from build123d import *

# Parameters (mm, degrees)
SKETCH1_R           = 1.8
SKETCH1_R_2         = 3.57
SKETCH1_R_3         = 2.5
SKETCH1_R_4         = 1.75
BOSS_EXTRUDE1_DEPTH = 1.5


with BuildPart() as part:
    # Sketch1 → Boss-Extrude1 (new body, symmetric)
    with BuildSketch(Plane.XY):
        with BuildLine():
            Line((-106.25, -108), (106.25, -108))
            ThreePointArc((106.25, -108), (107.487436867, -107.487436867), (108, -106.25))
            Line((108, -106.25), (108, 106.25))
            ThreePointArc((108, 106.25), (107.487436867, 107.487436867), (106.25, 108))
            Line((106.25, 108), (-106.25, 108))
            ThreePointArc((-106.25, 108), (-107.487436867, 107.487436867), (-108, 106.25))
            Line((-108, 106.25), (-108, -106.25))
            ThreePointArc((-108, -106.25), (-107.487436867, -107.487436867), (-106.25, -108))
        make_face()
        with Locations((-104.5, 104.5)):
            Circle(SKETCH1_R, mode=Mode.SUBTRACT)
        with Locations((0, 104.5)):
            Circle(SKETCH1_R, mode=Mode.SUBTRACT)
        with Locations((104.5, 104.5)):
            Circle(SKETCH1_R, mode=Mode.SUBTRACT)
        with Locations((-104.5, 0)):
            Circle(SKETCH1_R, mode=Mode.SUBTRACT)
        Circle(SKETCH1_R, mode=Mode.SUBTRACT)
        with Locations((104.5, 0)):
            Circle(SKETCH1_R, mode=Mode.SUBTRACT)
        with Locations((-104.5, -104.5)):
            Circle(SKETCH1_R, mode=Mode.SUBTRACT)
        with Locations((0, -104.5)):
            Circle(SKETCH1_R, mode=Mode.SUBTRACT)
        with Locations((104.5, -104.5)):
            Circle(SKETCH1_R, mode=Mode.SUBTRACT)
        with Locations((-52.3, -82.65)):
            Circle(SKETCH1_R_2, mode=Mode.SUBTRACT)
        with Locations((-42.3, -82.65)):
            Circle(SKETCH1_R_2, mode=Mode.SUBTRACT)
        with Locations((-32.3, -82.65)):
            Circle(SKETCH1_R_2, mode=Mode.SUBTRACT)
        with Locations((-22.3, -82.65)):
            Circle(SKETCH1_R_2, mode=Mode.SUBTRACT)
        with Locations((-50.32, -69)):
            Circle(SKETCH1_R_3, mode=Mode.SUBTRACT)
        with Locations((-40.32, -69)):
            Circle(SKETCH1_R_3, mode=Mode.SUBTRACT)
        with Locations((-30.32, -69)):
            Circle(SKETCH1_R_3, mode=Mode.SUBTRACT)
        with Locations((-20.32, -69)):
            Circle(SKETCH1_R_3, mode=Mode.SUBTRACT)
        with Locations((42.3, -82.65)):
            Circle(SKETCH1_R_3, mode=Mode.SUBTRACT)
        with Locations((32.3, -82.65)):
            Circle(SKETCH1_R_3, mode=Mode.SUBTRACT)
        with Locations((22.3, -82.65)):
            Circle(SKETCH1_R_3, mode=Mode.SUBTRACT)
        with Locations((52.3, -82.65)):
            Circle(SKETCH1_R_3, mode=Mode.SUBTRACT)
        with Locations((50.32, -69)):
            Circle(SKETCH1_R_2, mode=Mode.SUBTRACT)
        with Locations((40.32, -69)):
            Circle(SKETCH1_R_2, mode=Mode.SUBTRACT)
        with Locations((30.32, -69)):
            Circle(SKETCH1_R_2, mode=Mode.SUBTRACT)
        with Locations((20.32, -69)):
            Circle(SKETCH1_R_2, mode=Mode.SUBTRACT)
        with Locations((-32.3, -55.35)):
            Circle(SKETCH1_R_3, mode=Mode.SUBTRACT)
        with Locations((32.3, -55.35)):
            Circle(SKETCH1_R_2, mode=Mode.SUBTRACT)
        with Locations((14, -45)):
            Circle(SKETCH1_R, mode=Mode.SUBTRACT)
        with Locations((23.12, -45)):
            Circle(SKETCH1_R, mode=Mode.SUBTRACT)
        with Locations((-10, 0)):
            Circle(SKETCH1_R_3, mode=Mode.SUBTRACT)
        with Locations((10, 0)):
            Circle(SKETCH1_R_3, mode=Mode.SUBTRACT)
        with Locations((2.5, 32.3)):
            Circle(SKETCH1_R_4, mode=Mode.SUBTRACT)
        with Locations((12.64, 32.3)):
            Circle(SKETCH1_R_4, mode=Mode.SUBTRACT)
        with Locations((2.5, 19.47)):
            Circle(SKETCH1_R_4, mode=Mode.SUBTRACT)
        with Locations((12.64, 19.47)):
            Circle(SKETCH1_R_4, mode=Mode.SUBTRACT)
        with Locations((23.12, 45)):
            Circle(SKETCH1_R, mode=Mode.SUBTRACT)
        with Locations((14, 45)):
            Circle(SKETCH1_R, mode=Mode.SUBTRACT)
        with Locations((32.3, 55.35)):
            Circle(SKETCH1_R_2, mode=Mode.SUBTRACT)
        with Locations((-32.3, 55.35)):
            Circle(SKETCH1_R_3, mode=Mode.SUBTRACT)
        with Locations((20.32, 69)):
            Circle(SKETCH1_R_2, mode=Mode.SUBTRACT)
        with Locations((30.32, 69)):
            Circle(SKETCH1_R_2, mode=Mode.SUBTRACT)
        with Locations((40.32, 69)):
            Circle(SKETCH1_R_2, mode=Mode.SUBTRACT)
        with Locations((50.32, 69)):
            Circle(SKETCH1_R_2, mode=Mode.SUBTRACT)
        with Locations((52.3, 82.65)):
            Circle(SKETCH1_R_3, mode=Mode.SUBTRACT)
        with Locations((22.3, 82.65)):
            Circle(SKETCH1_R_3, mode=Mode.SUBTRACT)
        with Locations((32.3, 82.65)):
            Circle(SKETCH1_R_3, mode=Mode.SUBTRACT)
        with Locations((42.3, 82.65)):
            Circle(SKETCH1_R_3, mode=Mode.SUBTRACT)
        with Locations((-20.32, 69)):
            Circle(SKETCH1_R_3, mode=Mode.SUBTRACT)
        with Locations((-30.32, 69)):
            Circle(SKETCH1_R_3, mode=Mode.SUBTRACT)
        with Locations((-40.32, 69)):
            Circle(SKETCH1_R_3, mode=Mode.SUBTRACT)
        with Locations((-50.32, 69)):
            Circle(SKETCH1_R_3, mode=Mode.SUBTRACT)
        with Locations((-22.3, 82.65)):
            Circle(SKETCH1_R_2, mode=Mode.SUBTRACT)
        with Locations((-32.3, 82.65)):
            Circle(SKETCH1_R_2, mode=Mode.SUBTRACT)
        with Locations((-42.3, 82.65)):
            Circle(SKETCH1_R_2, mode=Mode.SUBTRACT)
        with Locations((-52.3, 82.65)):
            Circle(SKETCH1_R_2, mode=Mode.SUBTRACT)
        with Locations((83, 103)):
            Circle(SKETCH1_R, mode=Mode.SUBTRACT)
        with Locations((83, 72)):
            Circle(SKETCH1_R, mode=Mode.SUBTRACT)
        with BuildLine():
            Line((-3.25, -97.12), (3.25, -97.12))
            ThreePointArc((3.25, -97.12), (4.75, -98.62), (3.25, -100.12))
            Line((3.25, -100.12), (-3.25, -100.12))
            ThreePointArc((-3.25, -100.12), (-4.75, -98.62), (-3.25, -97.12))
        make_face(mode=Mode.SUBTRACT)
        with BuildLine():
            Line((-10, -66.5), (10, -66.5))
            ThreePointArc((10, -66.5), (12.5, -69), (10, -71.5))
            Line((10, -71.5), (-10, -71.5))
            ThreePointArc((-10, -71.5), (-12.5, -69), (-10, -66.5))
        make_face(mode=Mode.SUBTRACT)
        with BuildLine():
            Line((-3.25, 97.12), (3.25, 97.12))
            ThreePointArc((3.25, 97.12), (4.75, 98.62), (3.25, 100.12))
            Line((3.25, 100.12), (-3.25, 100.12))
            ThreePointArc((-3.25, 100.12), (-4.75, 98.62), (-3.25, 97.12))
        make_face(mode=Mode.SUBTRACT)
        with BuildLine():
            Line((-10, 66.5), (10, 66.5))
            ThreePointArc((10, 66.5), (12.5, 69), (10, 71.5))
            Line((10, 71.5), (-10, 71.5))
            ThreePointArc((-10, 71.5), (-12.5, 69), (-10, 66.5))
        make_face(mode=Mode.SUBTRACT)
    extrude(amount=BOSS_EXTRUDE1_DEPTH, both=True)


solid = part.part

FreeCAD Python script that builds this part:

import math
import FreeCAD as App
import Part
import Sketcher

V = App.Vector

doc = App.newDocument("Part")
params = doc.addObject("Spreadsheet::Sheet", "Params")
for row, (alias, value) in enumerate([
    ("sketch1_diameter", "5 mm"),
    ("sketch1_diameter2", "3.6 mm"),
    ("sketch1_diameter3", "3.5 mm"),
    ("sketch1_radius", "1.5 mm"),
    ("sketch1_diameter4", "7.14 mm"),
    ("pad1_length", "3 mm"),
], start=1):
    params.set(f"A{row}", alias)
    params.set(f"B{row}", "=" + value)
    params.setAlias(f"B{row}", alias)

body = doc.addObject("PartDesign::Body", "Body")

# Sketch on XY plane
sketch1 = body.newObject("Sketcher::SketchObject", "Sketch")
sketch1.AttachmentSupport = (doc.getObject("XY_Plane"), [""])
sketch1.MapMode = "FlatFace"
sketch1.addGeometry([
    Part.LineSegment(V(-106.25, -108, 0), V(106.25, -108, 0)),  # 0
    Part.ArcOfCircle(Part.Circle(V(106.25, -106.25, 0), V(0, 0, 1), 1.75), math.radians(-90), math.radians(0)),  # 1
    Part.LineSegment(V(108, -106.25, 0), V(108, 106.25, 0)),  # 2
    Part.ArcOfCircle(Part.Circle(V(106.25, 106.25, 0), V(0, 0, 1), 1.75), math.radians(0), math.radians(90)),  # 3
    Part.LineSegment(V(106.25, 108, 0), V(-106.25, 108, 0)),  # 4
    Part.ArcOfCircle(Part.Circle(V(-106.25, 106.25, 0), V(0, 0, 1), 1.75), math.radians(90), math.radians(180)),  # 5
    Part.LineSegment(V(-108, 106.25, 0), V(-108, -106.25, 0)),  # 6
    Part.ArcOfCircle(Part.Circle(V(-106.25, -106.25, 0), V(0, 0, 1), 1.75), math.radians(180), math.radians(270)),  # 7
    Part.Circle(V(-104.5, -104.5, 0), V(0, 0, 1), 1.8),  # 8
    Part.Circle(V(-52.3, -82.65, 0), V(0, 0, 1), 3.57),  # 9
    Part.Circle(V(-42.3, -82.65, 0), V(0, 0, 1), 3.57),  # 10
    Part.Circle(V(-32.3, -82.65, 0), V(0, 0, 1), 3.57),  # 11
    Part.Circle(V(-22.3, -82.65, 0), V(0, 0, 1), 3.57),  # 12
    Part.Circle(V(-50.32, -69, 0), V(0, 0, 1), 2.5),  # 13
    Part.Circle(V(-40.32, -69, 0), V(0, 0, 1), 2.5),  # 14
    Part.Circle(V(-30.32, -69, 0), V(0, 0, 1), 2.5),  # 15
    Part.Circle(V(-32.3, -55.35, 0), V(0, 0, 1), 2.5),  # 16
    Part.Circle(V(-20.32, -69, 0), V(0, 0, 1), 2.5),  # 17
    Part.Circle(V(0, -104.5, 0), V(0, 0, 1), 1.8),  # 18
    Part.ArcOfCircle(Part.Circle(V(-3.25, -98.62, 0), V(0, 0, 1), 1.5), math.radians(90), math.radians(270)),  # 19
    Part.LineSegment(V(-3.25, -97.12, 0), V(3.25, -97.12, 0)),  # 20
    Part.ArcOfCircle(Part.Circle(V(3.25, -98.62, 0), V(0, 0, 1), 1.5), math.radians(-90), math.radians(90)),  # 21
    Part.LineSegment(V(3.25, -100.12, 0), V(-3.25, -100.12, 0)),  # 22
    Part.Circle(V(22.3, -82.65, 0), V(0, 0, 1), 2.5),  # 23
    Part.Circle(V(32.3, -82.65, 0), V(0, 0, 1), 2.5),  # 24
    Part.Circle(V(42.3, -82.65, 0), V(0, 0, 1), 2.5),  # 25
    Part.Circle(V(52.3, -82.65, 0), V(0, 0, 1), 2.5),  # 26
    Part.ArcOfCircle(Part.Circle(V(-10, -69, 0), V(0, 0, 1), 2.5), math.radians(90), math.radians(270)),  # 27
    Part.LineSegment(V(-10, -66.5, 0), V(10, -66.5, 0)),  # 28
    Part.ArcOfCircle(Part.Circle(V(10, -69, 0), V(0, 0, 1), 2.5), math.radians(-90), math.radians(90)),  # 29
    Part.LineSegment(V(10, -71.5, 0), V(-10, -71.5, 0)),  # 30
    Part.Circle(V(20.32, -69, 0), V(0, 0, 1), 3.57),  # 31
    Part.Circle(V(30.32, -69, 0), V(0, 0, 1), 3.57),  # 32
    Part.Circle(V(40.32, -69, 0), V(0, 0, 1), 3.57),  # 33
    Part.Circle(V(50.32, -69, 0), V(0, 0, 1), 3.57),  # 34
    Part.Circle(V(32.3, -55.35, 0), V(0, 0, 1), 3.57),  # 35
    Part.Circle(V(104.5, -104.5, 0), V(0, 0, 1), 1.8),  # 36
    Part.Circle(V(14, -45, 0), V(0, 0, 1), 1.8),  # 37
    Part.Circle(V(23.12, -45, 0), V(0, 0, 1), 1.8),  # 38
    Part.Circle(V(-104.5, 0, 0), V(0, 0, 1), 1.8),  # 39
    Part.Circle(V(-10, 0, 0), V(0, 0, 1), 2.5),  # 40
    Part.Circle(V(-104.5, 104.5, 0), V(0, 0, 1), 1.8),  # 41
    Part.Circle(V(-32.3, 55.35, 0), V(0, 0, 1), 2.5),  # 42
    Part.Circle(V(-50.32, 69, 0), V(0, 0, 1), 2.5),  # 43
    Part.Circle(V(-40.32, 69, 0), V(0, 0, 1), 2.5),  # 44
    Part.Circle(V(-30.32, 69, 0), V(0, 0, 1), 2.5),  # 45
    Part.Circle(V(-20.32, 69, 0), V(0, 0, 1), 2.5),  # 46
    Part.Circle(V(-52.3, 82.65, 0), V(0, 0, 1), 3.57),  # 47
    Part.Circle(V(-42.3, 82.65, 0), V(0, 0, 1), 3.57),  # 48
    Part.Circle(V(-32.3, 82.65, 0), V(0, 0, 1), 3.57),  # 49
    Part.Circle(V(-22.3, 82.65, 0), V(0, 0, 1), 3.57),  # 50
    Part.Circle(V(0, 0, 0), V(0, 0, 1), 1.8),  # 51
    Part.Circle(V(10, 0, 0), V(0, 0, 1), 2.5),  # 52
    Part.Circle(V(2.5, 19.47, 0), V(0, 0, 1), 1.75),  # 53
    Part.Circle(V(12.64, 19.47, 0), V(0, 0, 1), 1.75),  # 54
    Part.Circle(V(2.5, 32.3, 0), V(0, 0, 1), 1.75),  # 55
    Part.Circle(V(12.64, 32.3, 0), V(0, 0, 1), 1.75),  # 56
    Part.Circle(V(14, 45, 0), V(0, 0, 1), 1.8),  # 57
    Part.Circle(V(23.12, 45, 0), V(0, 0, 1), 1.8),  # 58
    Part.Circle(V(104.5, 0, 0), V(0, 0, 1), 1.8),  # 59
    Part.LineSegment(V(10, 66.5, 0), V(-10, 66.5, 0)),  # 60
    Part.ArcOfCircle(Part.Circle(V(-10, 69, 0), V(0, 0, 1), 2.5), math.radians(90), math.radians(270)),  # 61
    Part.LineSegment(V(-10, 71.5, 0), V(10, 71.5, 0)),  # 62
    Part.ArcOfCircle(Part.Circle(V(10, 69, 0), V(0, 0, 1), 2.5), math.radians(-90), math.radians(90)),  # 63
    Part.Circle(V(20.32, 69, 0), V(0, 0, 1), 3.57),  # 64
    Part.Circle(V(32.3, 55.35, 0), V(0, 0, 1), 3.57),  # 65
    Part.Circle(V(30.32, 69, 0), V(0, 0, 1), 3.57),  # 66
    Part.Circle(V(40.32, 69, 0), V(0, 0, 1), 3.57),  # 67
    Part.Circle(V(50.32, 69, 0), V(0, 0, 1), 3.57),  # 68
    Part.Circle(V(22.3, 82.65, 0), V(0, 0, 1), 2.5),  # 69
    Part.LineSegment(V(3.25, 97.12, 0), V(-3.25, 97.12, 0)),  # 70
    Part.ArcOfCircle(Part.Circle(V(-3.25, 98.62, 0), V(0, 0, 1), 1.5), math.radians(90), math.radians(270)),  # 71
    Part.LineSegment(V(-3.25, 100.12, 0), V(3.25, 100.12, 0)),  # 72
    Part.ArcOfCircle(Part.Circle(V(3.25, 98.62, 0), V(0, 0, 1), 1.5), math.radians(-90), math.radians(90)),  # 73
    Part.Circle(V(0, 104.5, 0), V(0, 0, 1), 1.8),  # 74
    Part.Circle(V(32.3, 82.65, 0), V(0, 0, 1), 2.5),  # 75
    Part.Circle(V(42.3, 82.65, 0), V(0, 0, 1), 2.5),  # 76
    Part.Circle(V(52.3, 82.65, 0), V(0, 0, 1), 2.5),  # 77
    Part.Circle(V(83, 72, 0), V(0, 0, 1), 1.8),  # 78
    Part.Circle(V(83, 103, 0), V(0, 0, 1), 1.8),  # 79
    Part.Circle(V(104.5, 104.5, 0), V(0, 0, 1), 1.8),  # 80
], False)
sketch1.addConstraint([
    Sketcher.Constraint("Tangent", 0, 2, 1, 1),
    Sketcher.Constraint("Tangent", 1, 2, 2, 1),
    Sketcher.Constraint("Tangent", 2, 2, 3, 1),
    Sketcher.Constraint("Tangent", 3, 2, 4, 1),
    Sketcher.Constraint("Tangent", 4, 2, 5, 1),
    Sketcher.Constraint("Tangent", 5, 2, 6, 1),
    Sketcher.Constraint("Tangent", 6, 2, 7, 1),
    Sketcher.Constraint("Tangent", 7, 2, 0, 1),
    Sketcher.Constraint("Tangent", 19, 1, 20, 1),
    Sketcher.Constraint("Tangent", 20, 2, 21, 2),
    Sketcher.Constraint("Tangent", 21, 1, 22, 1),
    Sketcher.Constraint("Tangent", 22, 2, 19, 2),
    Sketcher.Constraint("Tangent", 27, 1, 28, 1),
    Sketcher.Constraint("Tangent", 28, 2, 29, 2),
    Sketcher.Constraint("Tangent", 29, 1, 30, 1),
    Sketcher.Constraint("Tangent", 30, 2, 27, 2),
    Sketcher.Constraint("Tangent", 60, 2, 61, 2),
    Sketcher.Constraint("Tangent", 61, 1, 62, 1),
    Sketcher.Constraint("Tangent", 62, 2, 63, 2),
    Sketcher.Constraint("Tangent", 63, 1, 60, 1),
    Sketcher.Constraint("Tangent", 70, 2, 71, 2),
    Sketcher.Constraint("Tangent", 71, 1, 72, 1),
    Sketcher.Constraint("Tangent", 72, 2, 73, 2),
    Sketcher.Constraint("Tangent", 73, 1, 70, 1),
    Sketcher.Constraint("Horizontal", 0),
    Sketcher.Constraint("Vertical", 2),
    Sketcher.Constraint("Horizontal", 4),
    Sketcher.Constraint("Vertical", 6),
    Sketcher.Constraint("Horizontal", 20),
    Sketcher.Constraint("Horizontal", 22),
    Sketcher.Constraint("Horizontal", 28),
    Sketcher.Constraint("Horizontal", 30),
    Sketcher.Constraint("Horizontal", 60),
    Sketcher.Constraint("Horizontal", 62),
    Sketcher.Constraint("Horizontal", 70),
    Sketcher.Constraint("Horizontal", 72),
    Sketcher.Constraint("Coincident", 51, 3, -1, 1),
    Sketcher.Constraint("Equal", 1, 3),
    Sketcher.Constraint("Equal", 3, 5),
    Sketcher.Constraint("Equal", 5, 7),
    Sketcher.Constraint("Equal", 9, 10),
    Sketcher.Constraint("Equal", 10, 11),
    Sketcher.Constraint("Equal", 11, 12),
    Sketcher.Constraint("Equal", 13, 14),
    Sketcher.Constraint("Equal", 14, 15),
    Sketcher.Constraint("Equal", 15, 16),
    Sketcher.Constraint("Equal", 16, 17),
    Sketcher.Constraint("Equal", 8, 18),
    Sketcher.Constraint("Equal", 17, 23),
    Sketcher.Constraint("Equal", 23, 24),
    Sketcher.Constraint("Equal", 24, 25),
    Sketcher.Constraint("Equal", 25, 26),
    Sketcher.Constraint("Equal", 26, 27),
    Sketcher.Constraint("Equal", 12, 31),
    Sketcher.Constraint("Equal", 31, 32),
    Sketcher.Constraint("Equal", 32, 33),
    Sketcher.Constraint("Equal", 33, 34),
    Sketcher.Constraint("Equal", 34, 35),
    Sketcher.Constraint("Equal", 18, 36),
    Sketcher.Constraint("Equal", 36, 37),
    Sketcher.Constraint("Equal", 37, 38),
    Sketcher.Constraint("Equal", 38, 39),
    Sketcher.Constraint("Equal", 29, 40),
    Sketcher.Constraint("Equal", 39, 41),
    Sketcher.Constraint("Equal", 40, 42),
    Sketcher.Constraint("Equal", 42, 43),
    Sketcher.Constraint("Equal", 43, 44),
    Sketcher.Constraint("Equal", 44, 45),
    Sketcher.Constraint("Equal", 45, 46),
    Sketcher.Constraint("Equal", 35, 47),
    Sketcher.Constraint("Equal", 47, 48),
    Sketcher.Constraint("Equal", 48, 49),
    Sketcher.Constraint("Equal", 49, 50),
    Sketcher.Constraint("Equal", 41, 51),
    Sketcher.Constraint("Equal", 46, 52),
    Sketcher.Constraint("Equal", 7, 53),
    Sketcher.Constraint("Equal", 53, 54),
    Sketcher.Constraint("Equal", 54, 55),
    Sketcher.Constraint("Equal", 55, 56),
    Sketcher.Constraint("Equal", 51, 57),
    Sketcher.Constraint("Equal", 57, 58),
    Sketcher.Constraint("Equal", 58, 59),
    Sketcher.Constraint("Equal", 52, 61),
    Sketcher.Constraint("Equal", 50, 64),
    Sketcher.Constraint("Equal", 64, 65),
    Sketcher.Constraint("Equal", 65, 66),
    Sketcher.Constraint("Equal", 66, 67),
    Sketcher.Constraint("Equal", 67, 68),
    Sketcher.Constraint("Equal", 63, 69),
    Sketcher.Constraint("Equal", 21, 71),
    Sketcher.Constraint("Equal", 59, 74),
    Sketcher.Constraint("Equal", 69, 75),
    Sketcher.Constraint("Equal", 75, 76),
    Sketcher.Constraint("Equal", 76, 77),
    Sketcher.Constraint("Equal", 74, 78),
    Sketcher.Constraint("Equal", 78, 79),
    Sketcher.Constraint("Equal", 79, 80),
    Sketcher.Constraint("Symmetric", 1, 3, 5, 3, -1, 1),
    Sketcher.Constraint("Symmetric", 36, 3, 41, 3, -1, 1),
    Sketcher.Constraint("Symmetric", 35, 3, 42, 3, -1, 1),
    Sketcher.Constraint("Symmetric", 34, 3, 43, 3, -1, 1),
    Sketcher.Constraint("Symmetric", 33, 3, 44, 3, -1, 1),
    Sketcher.Constraint("Symmetric", 32, 3, 45, 3, -1, 1),
    Sketcher.Constraint("Symmetric", 31, 3, 46, 3, -1, 1),
    Sketcher.Constraint("Symmetric", 26, 3, 47, 3, -1, 1),
    Sketcher.Constraint("Symmetric", 25, 3, 48, 3, -1, 1),
    Sketcher.Constraint("Symmetric", 24, 3, 49, 3, -1, 1),
    Sketcher.Constraint("Symmetric", 23, 3, 50, 3, -1, 1),
    Sketcher.Constraint("Symmetric", 40, 3, 52, 3, -1, 1),
    Sketcher.Constraint("Symmetric", 39, 3, 59, 3, -1, 1),
    Sketcher.Constraint("Symmetric", 29, 3, 61, 3, -1, 1),
    Sketcher.Constraint("Symmetric", 17, 3, 64, 3, -1, 1),
    Sketcher.Constraint("Symmetric", 16, 3, 65, 3, -1, 1),
    Sketcher.Constraint("Symmetric", 15, 3, 66, 3, -1, 1),
    Sketcher.Constraint("Symmetric", 14, 3, 67, 3, -1, 1),
    Sketcher.Constraint("Symmetric", 13, 3, 68, 3, -1, 1),
    Sketcher.Constraint("Symmetric", 12, 3, 69, 3, -1, 1),
    Sketcher.Constraint("Symmetric", 21, 3, 71, 3, -1, 1),
    Sketcher.Constraint("Symmetric", 18, 3, 74, 3, -1, 1),
    Sketcher.Constraint("Symmetric", 11, 3, 75, 3, -1, 1),
    Sketcher.Constraint("Symmetric", 10, 3, 76, 3, -1, 1),
    Sketcher.Constraint("Symmetric", 9, 3, 77, 3, -1, 1),
    Sketcher.Constraint("Symmetric", 8, 3, 80, 3, -1, 1),
    Sketcher.Constraint("Symmetric", 12, 3, 23, 3, -2),
    Sketcher.Constraint("Symmetric", 11, 3, 24, 3, -2),
    Sketcher.Constraint("Symmetric", 10, 3, 25, 3, -2),
    Sketcher.Constraint("Symmetric", 9, 3, 26, 3, -2),
    Sketcher.Constraint("Symmetric", 17, 3, 31, 3, -2),
    Sketcher.Constraint("Symmetric", 15, 3, 32, 3, -2),
    Sketcher.Constraint("Symmetric", 14, 3, 33, 3, -2),
    Sketcher.Constraint("Symmetric", 13, 3, 34, 3, -2),
    Sketcher.Constraint("Symmetric", 16, 3, 35, 3, -2),
    Sketcher.Constraint("Symmetric", 8, 3, 36, 3, -2),
    Sketcher.Constraint("Symmetric", 37, 3, 57, 3, -1),
    Sketcher.Constraint("Symmetric", 38, 3, 58, 3, -1),
    Sketcher.Constraint("PointOnObject", 18, 3, -2),
    Sketcher.Constraint("PointOnObject", 39, 3, -1),
    Sketcher.Constraint("PointOnObject", 40, 3, -1),
    Sketcher.Constraint("Horizontal", 9, 3, 10, 3),
    Sketcher.Constraint("Horizontal", 10, 3, 11, 3),
    Sketcher.Constraint("Horizontal", 11, 3, 12, 3),
    Sketcher.Constraint("Horizontal", 13, 3, 14, 3),
    Sketcher.Constraint("Horizontal", 14, 3, 15, 3),
    Sketcher.Constraint("Horizontal", 15, 3, 17, 3),
    Sketcher.Constraint("Horizontal", 8, 3, 18, 3),
    Sketcher.Constraint("Horizontal", 17, 3, 27, 3),
    Sketcher.Constraint("Horizontal", 37, 3, 38, 3),
    Sketcher.Constraint("Horizontal", 53, 3, 54, 3),
    Sketcher.Constraint("Horizontal", 55, 3, 56, 3),
    Sketcher.Constraint("Vertical", 11, 3, 16, 3),
    Sketcher.Constraint("Vertical", 8, 3, 39, 3),
    Sketcher.Constraint("Vertical", 27, 3, 40, 3),
    Sketcher.Constraint("Vertical", 29, 3, 52, 3),
    Sketcher.Constraint("Vertical", 53, 3, 55, 3),
    Sketcher.Constraint("Vertical", 54, 3, 56, 3),
    Sketcher.Constraint("Vertical", 52, 3, 63, 3),
    Sketcher.Constraint("Vertical", 19, 3, 71, 3),
    Sketcher.Constraint("Vertical", 21, 3, 73, 3),
    Sketcher.Constraint("Vertical", 78, 3, 79, 3),
    Sketcher.Constraint("Equal", 4, 2),
    Sketcher.Constraint("Diameter", 13, 5.0),
    Sketcher.Constraint("Diameter", 8, 3.6),
    Sketcher.Constraint("Diameter", 53, 3.5),
    Sketcher.Constraint("Radius", 19, 1.5),
    Sketcher.Constraint("Diameter", 9, 7.14),
    Sketcher.Constraint("DistanceX", 28, 1, 28, 2, 20.0),
    Sketcher.Constraint("DistanceX", 0, 1, 0, 2, 212.5),
    Sketcher.Constraint("DistanceX", 20, 1, 20, 2, 6.5),
    Sketcher.Constraint("DistanceY", 13, 3, -1, 1, 69.0),
    Sketcher.Constraint("DistanceX", -1, 1, 37, 3, 14.0),
    Sketcher.Constraint("DistanceY", 37, 3, -1, 1, 45.0),
    Sketcher.Constraint("DistanceX", -1, 1, 78, 3, 83.0),
    Sketcher.Constraint("DistanceY", -1, 1, 78, 3, 72.0),
    Sketcher.Constraint("DistanceY", -1, 1, 79, 3, 103.0),
    Sketcher.Constraint("DistanceX", 8, 3, -1, 1, 104.5),
    Sketcher.Constraint("DistanceY", 8, 3, -1, 1, 104.5),
    Sketcher.Constraint("DistanceX", 9, 3, -1, 1, 52.3),
    Sketcher.Constraint("DistanceX", 10, 3, -1, 1, 42.3),
    Sketcher.Constraint("DistanceX", 11, 3, -1, 1, 32.3),
    Sketcher.Constraint("DistanceX", 12, 3, -1, 1, 22.3),
    Sketcher.Constraint("DistanceX", -1, 1, 53, 3, 2.5),
    Sketcher.Constraint("DistanceY", -1, 1, 55, 3, 32.3),
    Sketcher.Constraint("DistanceY", 9, 3, -1, 1, 82.65),
    Sketcher.Constraint("DistanceX", 13, 3, -1, 1, 50.32),
    Sketcher.Constraint("DistanceX", 14, 3, -1, 1, 40.32),
    Sketcher.Constraint("DistanceX", 15, 3, -1, 1, 30.32),
    Sketcher.Constraint("DistanceY", 16, 3, -1, 1, 55.35),
    Sketcher.Constraint("DistanceX", 17, 3, -1, 1, 20.32),
    Sketcher.Constraint("DistanceY", 19, 3, -1, 1, 98.62),
    Sketcher.Constraint("DistanceX", -1, 1, 38, 3, 23.12),
    Sketcher.Constraint("DistanceY", -1, 1, 53, 3, 19.47),
    Sketcher.Constraint("DistanceX", -1, 1, 54, 3, 12.64),
])
sketch1.setExpression("Constraints[160]", "Params.sketch1_diameter")
sketch1.setExpression("Constraints[161]", "Params.sketch1_diameter2")
sketch1.setExpression("Constraints[162]", "Params.sketch1_diameter3")
sketch1.setExpression("Constraints[163]", "Params.sketch1_radius")
sketch1.setExpression("Constraints[164]", "Params.sketch1_diameter4")
pad1 = body.newObject("PartDesign::Pad", "Pad")
pad1.Profile = sketch1
pad1.setExpression("Length", "Params.pad1_length")
pad1.Midplane = True

doc.recompute()
